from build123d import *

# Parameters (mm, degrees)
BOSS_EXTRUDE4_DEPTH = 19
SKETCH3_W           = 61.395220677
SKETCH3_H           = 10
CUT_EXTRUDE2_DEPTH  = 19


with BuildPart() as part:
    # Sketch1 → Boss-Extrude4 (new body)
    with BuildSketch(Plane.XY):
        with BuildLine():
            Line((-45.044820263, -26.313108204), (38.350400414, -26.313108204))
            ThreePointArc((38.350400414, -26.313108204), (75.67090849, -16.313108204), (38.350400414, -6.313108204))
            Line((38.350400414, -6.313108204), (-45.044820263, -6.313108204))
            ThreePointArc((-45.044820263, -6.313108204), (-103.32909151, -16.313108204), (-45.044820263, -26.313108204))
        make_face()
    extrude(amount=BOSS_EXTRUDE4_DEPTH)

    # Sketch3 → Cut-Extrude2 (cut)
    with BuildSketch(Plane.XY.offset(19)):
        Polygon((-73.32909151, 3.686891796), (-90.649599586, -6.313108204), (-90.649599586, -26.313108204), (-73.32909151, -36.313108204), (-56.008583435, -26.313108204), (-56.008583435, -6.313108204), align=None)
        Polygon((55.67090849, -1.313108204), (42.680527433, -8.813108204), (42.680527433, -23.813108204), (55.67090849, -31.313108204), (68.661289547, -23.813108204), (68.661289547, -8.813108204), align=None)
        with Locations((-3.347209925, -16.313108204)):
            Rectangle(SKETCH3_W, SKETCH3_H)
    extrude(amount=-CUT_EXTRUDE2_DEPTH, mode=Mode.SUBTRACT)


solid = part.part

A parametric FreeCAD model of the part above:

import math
import FreeCAD as App
import Part
import Sketcher
from FreeCAD import Vector
Q = App.Units.Quantity

doc = App.newDocument("Part")
body = doc.addObject("PartDesign::Body", "Body")

# Sketch on XY plane
sketch1 = doc.addObject("Sketcher::SketchObject", "Sketch")
body.addObject(sketch1)
sketch1.AttachmentSupport = (doc.XY_Plane, [""])
sketch1.MapMode = "FlatFace"
sketch1.addGeometry(Part.LineSegment(Vector(-45.04482, -26.313108, 0), Vector(38.3504, -26.313108, 0)), False)
sketch1.addGeometry(Part.ArcOfCircle(Part.Circle(Vector(55.670908, -16.313108, 0), Vector(0, 0, 1), 20), math.radians(-150), math.radians(150)), False)
sketch1.addGeometry(Part.LineSegment(Vector(38.3504, -6.313108, 0), Vector(-45.04482, -6.313108, 0)), False)
sketch1.addGeometry(Part.ArcOfCircle(Part.Circle(Vector(-73.329092, -16.313108, 0), Vector(0, 0, 1), 30), math.radians(19.471221), math.radians(340.528779)), False)
sketch1.addConstraint(Sketcher.Constraint("Coincident", 0, 2, 1, 1))
sketch1.addConstraint(Sketcher.Constraint("Coincident", 1, 2, 2, 1))
sketch1.addConstraint(Sketcher.Constraint("Coincident", 2, 2, 3, 1))
sketch1.addConstraint(Sketcher.Constraint("Coincident", 3, 2, 0, 1))
sketch1.addConstraint(Sketcher.Constraint("Horizontal", 0))
sketch1.addConstraint(Sketcher.Constraint("Horizontal", 2))
sketch1.addConstraint(Sketcher.Constraint("Horizontal", 1, 3, 3, 3))
sketch1.addConstraint(Sketcher.Constraint("Vertical", 0, 2, 1, 2))
sketch1.addConstraint(Sketcher.Constraint("Radius", 1, Q("20 mm")))
sketch1.addConstraint(Sketcher.Constraint("Radius", 3, Q("30 mm")))
sketch1.addConstraint(Sketcher.Constraint("DistanceX", 3, 3, 1, 3, Q("129 mm")))
sketch1.addConstraint(Sketcher.Constraint("DistanceY", 0, 2, 1, 3, Q("10 mm")))
sketch1.addConstraint(Sketcher.Constraint("DistanceX", -1, 1, 0, 2, Q("38.3504 mm")))
sketch1.addConstraint(Sketcher.Constraint("DistanceY", 1, 3, -1, 1, Q("16.313108 mm")))
pad1 = doc.addObject("PartDesign::Pad", "Pad")
body.addObject(pad1)
pad1.Profile = sketch1
pad1.Length = 19

# Sketch on XY plane
sketch2 = doc.addObject("Sketcher::SketchObject", "Sketch001")
body.addObject(sketch2)
sketch2.AttachmentSupport = (doc.XY_Plane, [""])
sketch2.MapMode = "FlatFace"
sketch2.AttachmentOffset = App.Placement(Vector(0, 0, 19), App.Rotation())
sketch2.addGeometry(Part.LineSegment(Vector(-73.329092, 3.686892, 0), Vector(-90.6496, -6.313108, 0)), False)
sketch2.addGeometry(Part.LineSegment(Vector(-90.6496, -6.313108, 0), Vector(-90.6496, -26.313108, 0)), False)
sketch2.addGeometry(Part.LineSegment(Vector(-90.6496, -26.313108, 0), Vector(-73.329092, -36.313108, 0)), False)
sketch2.addGeometry(Part.LineSegment(Vector(-73.329092, -36.313108, 0), Vector(-56.008583, -26.313108, 0)), False)
sketch2.addGeometry(Part.LineSegment(Vector(-56.008583, -26.313108, 0), Vector(-56.008583, -6.313108, 0)), False)
sketch2.addGeometry(Part.LineSegment(Vector(-56.008583, -6.313108, 0), Vector(-73.329092, 3.686892, 0)), False)
sketch2.addGeometry(Part.LineSegment(Vector(55.670908, -1.313108, 0), Vector(42.680527, -8.813108, 0)), False)
sketch2.addGeometry(Part.LineSegment(Vector(42.680527, -8.813108, 0), Vector(42.680527, -23.813108, 0)), False)
sketch2.addGeometry(Part.LineSegment(Vector(42.680527, -23.813108, 0), Vector(55.670908, -31.313108, 0)), False)
sketch2.addGeometry(Part.LineSegment(Vector(55.670908, -31.313108, 0), Vector(68.66129, -23.813108, 0)), False)
sketch2.addGeometry(Part.LineSegment(Vector(68.66129, -23.813108, 0), Vector(68.66129, -8.813108, 0)), False)
sketch2.addGeometry(Part.LineSegment(Vector(68.66129, -8.813108, 0), Vector(55.670908, -1.313108, 0)), False)
sketch2.addGeometry(Part.LineSegment(Vector(-34.04482, -11.313108, 0), Vector(-34.04482, -21.313108, 0)), False)
sketch2.addGeometry(Part.LineSegment(Vector(-34.04482, -21.313108, 0), Vector(27.3504, -21.313108, 0)), False)
sketch2.addGeometry(Part.LineSegment(Vector(27.3504, -21.313108, 0), Vector(27.3504, -11.313108, 0)), False)
sketch2.addGeometry(Part.LineSegment(Vector(27.3504, -11.313108, 0), Vector(-34.04482, -11.313108, 0)), False)
sketch2.addConstraint(Sketcher.Constraint("Coincident", 0, 2, 1, 1))
sketch2.addConstraint(Sketcher.Constraint("Coincident", 1, 2, 2, 1))
sketch2.addConstraint(Sketcher.Constraint("Coincident", 2, 2, 3, 1))
sketch2.addConstraint(Sketcher.Constraint("Coincident", 3, 2, 4, 1))
sketch2.addConstraint(Sketcher.Constraint("Coincident", 4, 2, 5, 1))
sketch2.addConstraint(Sketcher.Constraint("Coincident", 5, 2, 0, 1))
sketch2.addConstraint(Sketcher.Constraint("Coincident", 6, 2, 7, 1))
sketch2.addConstraint(Sketcher.Constraint("Coincident", 7, 2, 8, 1))
sketch2.addConstraint(Sketcher.Constraint("Coincident", 8, 2, 9, 1))
sketch2.addConstraint(Sketcher.Constraint("Coincident", 9, 2, 10, 1))
sketch2.addConstraint(Sketcher.Constraint("Coincident", 10, 2, 11, 1))
sketch2.addConstraint(Sketcher.Constraint("Coincident", 11, 2, 6, 1))
sketch2.addConstraint(Sketcher.Constraint("Coincident", 12, 2, 13, 1))
sketch2.addConstraint(Sketcher.Constraint("Coincident", 13, 2, 14, 1))
sketch2.addConstraint(Sketcher.Constraint("Coincident", 14, 2, 15, 1))
sketch2.addConstraint(Sketcher.Constraint("Coincident", 15, 2, 12, 1))
sketch2.addConstraint(Sketcher.Constraint("Vertical", 1))
sketch2.addConstraint(Sketcher.Constraint("Vertical", 4))
sketch2.addConstraint(Sketcher.Constraint("Vertical", 7))
sketch2.addConstraint(Sketcher.Constraint("Vertical", 10))
sketch2.addConstraint(Sketcher.Constraint("Vertical", 12))
sketch2.addConstraint(Sketcher.Constraint("Horizontal", 13))
sketch2.addConstraint(Sketcher.Constraint("Vertical", 14))
sketch2.addConstraint(Sketcher.Constraint("Horizontal", 15))
sketch2.addConstraint(Sketcher.Constraint("Parallel", 0, 3))
sketch2.addConstraint(Sketcher.Constraint("Parallel", 2, 5))
sketch2.addConstraint(Sketcher.Constraint("Parallel", 3, 6))
sketch2.addConstraint(Sketcher.Constraint("Parallel", 5, 8))
sketch2.addConstraint(Sketcher.Constraint("Parallel", 6, 9))
sketch2.addConstraint(Sketcher.Constraint("Parallel", 8, 11))
sketch2.addConstraint(Sketcher.Constraint("Horizontal", 1, 2, 3, 2))
sketch2.addConstraint(Sketcher.Constraint("Horizontal", 0, 2, 4, 2))
sketch2.addConstraint(Sketcher.Constraint("Horizontal", 7, 2, 9, 2))
sketch2.addConstraint(Sketcher.Constraint("Horizontal", 6, 2, 10, 2))
sketch2.addConstraint(Sketcher.Constraint("Vertical", 2, 2, 5, 2))
sketch2.addConstraint(Sketcher.Constraint("DistanceY", 1, 2, 1, 1, Q("20 mm")))
sketch2.addConstraint(Sketcher.Constraint("DistanceY", 7, 2, 7, 1, Q("15 mm")))
sketch2.addConstraint(Sketcher.Constraint("DistanceY", 12, 2, 12, 1, Q("10 mm")))
sketch2.addConstraint(Sketcher.Constraint("Angle", 0, Q("-150 deg")))
sketch2.addConstraint(Sketcher.Constraint("Distance", 0, Q("20 mm")))
sketch2.addConstraint(Sketcher.Constraint("Distance", 6, Q("15 mm")))
sketch2.addConstraint(Sketcher.Constraint("DistanceY", 8, 2, 3, 2, Q("5 mm")))
sketch2.addConstraint(Sketcher.Constraint("DistanceX", 2, 2, 8, 2, Q("129 mm")))
sketch2.addConstraint(Sketcher.Constraint("DistanceY", 3, 2, 12, 2, Q("5 mm")))
sketch2.addConstraint(Sketcher.Constraint("DistanceX", 13, 1, 13, 2, Q("61.395221 mm")))
sketch2.addConstraint(Sketcher.Constraint("DistanceX", 0, 2, -1, 1, Q("90.6496 mm")))
sketch2.addConstraint(Sketcher.Constraint("DistanceX", -1, 1, 13, 2, Q("27.3504 mm")))
sketch2.addConstraint(Sketcher.Constraint("DistanceY", 0, 2, -1, 1, Q("6.313108 mm")))
pocket1 = doc.addObject("PartDesign::Pocket", "Pocket")
body.addObject(pocket1)
pocket1.Profile = sketch2
pocket1.Length = 19

doc.recompute()
